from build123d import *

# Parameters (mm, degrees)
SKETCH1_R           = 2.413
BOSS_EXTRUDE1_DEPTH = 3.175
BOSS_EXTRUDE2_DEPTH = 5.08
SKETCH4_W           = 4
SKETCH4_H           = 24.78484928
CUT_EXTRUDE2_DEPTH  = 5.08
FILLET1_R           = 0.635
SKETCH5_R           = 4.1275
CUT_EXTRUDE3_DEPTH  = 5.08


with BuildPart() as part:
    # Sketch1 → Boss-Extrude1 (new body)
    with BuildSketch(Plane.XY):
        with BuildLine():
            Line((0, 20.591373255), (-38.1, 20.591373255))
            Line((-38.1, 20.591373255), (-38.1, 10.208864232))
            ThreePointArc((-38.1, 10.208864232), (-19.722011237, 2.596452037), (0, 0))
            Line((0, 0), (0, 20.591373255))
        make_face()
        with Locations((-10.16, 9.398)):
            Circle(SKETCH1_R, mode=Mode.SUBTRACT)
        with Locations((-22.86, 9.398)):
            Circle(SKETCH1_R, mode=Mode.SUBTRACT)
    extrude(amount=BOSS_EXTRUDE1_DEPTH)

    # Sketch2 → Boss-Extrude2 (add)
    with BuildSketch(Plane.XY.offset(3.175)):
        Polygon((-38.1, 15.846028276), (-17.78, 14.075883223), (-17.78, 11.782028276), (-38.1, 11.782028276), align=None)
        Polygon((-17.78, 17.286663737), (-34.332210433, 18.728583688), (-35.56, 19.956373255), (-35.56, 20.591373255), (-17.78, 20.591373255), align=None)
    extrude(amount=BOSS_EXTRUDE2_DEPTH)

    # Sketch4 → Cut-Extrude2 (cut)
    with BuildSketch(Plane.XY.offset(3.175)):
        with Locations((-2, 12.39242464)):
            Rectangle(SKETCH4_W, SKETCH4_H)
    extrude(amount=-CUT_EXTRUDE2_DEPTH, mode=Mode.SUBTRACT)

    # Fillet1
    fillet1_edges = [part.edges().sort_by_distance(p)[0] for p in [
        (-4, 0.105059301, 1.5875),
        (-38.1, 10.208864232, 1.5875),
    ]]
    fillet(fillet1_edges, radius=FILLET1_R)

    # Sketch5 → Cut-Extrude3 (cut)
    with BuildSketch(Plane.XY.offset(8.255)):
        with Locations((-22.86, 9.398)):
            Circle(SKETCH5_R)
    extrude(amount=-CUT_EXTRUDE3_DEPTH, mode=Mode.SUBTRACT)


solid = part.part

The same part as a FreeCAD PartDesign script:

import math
import FreeCAD as App
import Part
import Sketcher
Q = App.Units.Quantity


def edges_at(feature, points):
    """Names of the edges that pass closest to the given points."""
    edges = feature.Shape.Edges
    near = lambda p: min(range(len(edges)), key=lambda i: edges[i].distToShape(Part.Vertex(*p))[0])
    return sorted({f"Edge{near(p) + 1}" for p in points})


def add_polygon(sketch, points):
    """Adds a closed chain of lines whose ends are joined by coincident constraints."""
    first, n = sketch.GeometryCount, len(points)
    for a, b in zip(points, points[1:] + points[:1]):
        sketch.addGeometry(Part.LineSegment(App.Vector(*a, 0), App.Vector(*b, 0)), False)
    for i in range(n):
        sketch.addConstraint(Sketcher.Constraint("Coincident", first + i, 2, first + (i + 1) % n, 1))

doc = App.newDocument("Part")
body = doc.addObject("PartDesign::Body", "Body")

# Sketch on XY plane
sketch1 = body.newObject("Sketcher::SketchObject", "Sketch")
sketch1.AttachmentSupport = (doc.getObject("XY_Plane"), [""])
sketch1.MapMode = "FlatFace"
sketch1.addGeometry(Part.LineSegment(App.Vector(0, 20.6, 0), App.Vector(-38.1, 20.6, 0)), False)
sketch1.addGeometry(Part.LineSegment(App.Vector(-38.1, 20.6, 0), App.Vector(-38.1, 10.2, 0)), False)
sketch1.addGeometry(Part.ArcOfCircle(Part.Circle(App.Vector(0, 76.2, 0), App.Vector(0, 0, 1), 76.2), math.radians(-120), math.radians(-90)), False)
sketch1.addGeometry(Part.LineSegment(App.Vector(0, 0, 0), App.Vector(0, 20.6, 0)), False)
sketch1.addGeometry(Part.Circle(App.Vector(-22.9, 9.4, 0), App.Vector(0, 0, 1), 2.4), False)
sketch1.addGeometry(Part.Circle(App.Vector(-10.2, 9.4, 0), App.Vector(0, 0, 1), 2.4), False)
sketch1.addConstraint(Sketcher.Constraint("Coincident", 0, 2, 1, 1))
sketch1.addConstraint(Sketcher.Constraint("Coincident", 1, 2, 2, 1))
sketch1.addConstraint(Sketcher.Constraint("Coincident", 2, 2, 3, 1))
sketch1.addConstraint(Sketcher.Constraint("Coincident", 3, 2, 0, 1))
sketch1.addConstraint(Sketcher.Constraint("Horizontal", 0))
sketch1.addConstraint(Sketcher.Constraint("Vertical", 1))
sketch1.addConstraint(Sketcher.Constraint("Vertical", 3))
sketch1.addConstraint(Sketcher.Constraint("Coincident", 2, 2, -1, 1))
sketch1.addConstraint(Sketcher.Constraint("Equal", 4, 5))
sketch1.addConstraint(Sketcher.Constraint("PointOnObject", 2, 3, -2))
sketch1.addConstraint(Sketcher.Constraint("Horizontal", 4, 3, 5, 3))
sketch1.addConstraint(Sketcher.Constraint("Radius", 2, Q("3 in")))
sketch1.addConstraint(Sketcher.Constraint("Diameter", 4, Q("0.19 in")))
sketch1.addConstraint(Sketcher.Constraint("DistanceX", 0, 2, 0, 1, Q("1.5 in")))
sketch1.addConstraint(Sketcher.Constraint("DistanceX", 4, 3, -1, 1, Q("0.9 in")))
sketch1.addConstraint(Sketcher.Constraint("DistanceX", 5, 3, -1, 1, Q("0.4 in")))
sketch1.addConstraint(Sketcher.Constraint("DistanceY", -1, 1, 4, 3, Q("0.37 in")))
sketch1.addConstraint(Sketcher.Constraint("DistanceY", 1, 2, 1, 1, Q("10.382509 mm")))
pad1 = body.newObject("PartDesign::Pad", "Pad")
pad1.Profile = sketch1
pad1.Length = Q("0.125 in")

# Sketch on XY plane
sketch2 = body.newObject("Sketcher::SketchObject", "Sketch001")
sketch2.AttachmentSupport = (doc.getObject("XY_Plane"), [""])
sketch2.MapMode = "FlatFace"
sketch2.AttachmentOffset = App.Placement(App.Vector(0, 0, 0.125 * 25.4), App.Rotation())
add_polygon(sketch2, [(-17.8, 14.1), (-38.1, 15.8), (-38.1, 11.8), (-17.8, 11.8)])  # lines 0-3
add_polygon(sketch2, [(-34.3, 18.7), (-17.8, 17.3), (-17.8, 20.6), (-35.6, 20.6), (-35.6, 20)])  # lines 4-8
sketch2.addConstraint(Sketcher.Constraint("Vertical", 1))
sketch2.addConstraint(Sketcher.Constraint("Horizontal", 2))
sketch2.addConstraint(Sketcher.Constraint("Vertical", 3))
sketch2.addConstraint(Sketcher.Constraint("Vertical", 5))
sketch2.addConstraint(Sketcher.Constraint("Horizontal", 6))
sketch2.addConstraint(Sketcher.Constraint("Vertical", 7))
sketch2.addConstraint(Sketcher.Constraint("Parallel", 0, 4))
sketch2.addConstraint(Sketcher.Constraint("Vertical", 3, 2, 4, 2))
sketch2.addConstraint(Sketcher.Constraint("DistanceX", 2, 1, 2, 2, Q("0.8 in")))
sketch2.addConstraint(Sketcher.Constraint("DistanceX", 6, 2, 6, 1, Q("0.7 in")))
sketch2.addConstraint(Sketcher.Constraint("Angle", 8, Q("-45 deg")))
sketch2.addConstraint(Sketcher.Constraint("DistanceY", 1, 2, 1, 1, Q("0.16 in")))
sketch2.addConstraint(Sketcher.Constraint("DistanceX", 0, 2, -1, 1, Q("1.5 in")))
sketch2.addConstraint(Sketcher.Constraint("DistanceY", 7, 2, 7, 1, Q("0.025 in")))
sketch2.addConstraint(Sketcher.Constraint("DistanceY", 5, 1, 5, 2, Q("3.30471 mm")))
sketch2.addConstraint(Sketcher.Constraint("DistanceY", 3, 1, 3, 2, Q("2.293855 mm")))
sketch2.addConstraint(Sketcher.Constraint("DistanceY", -1, 1, 0, 2, Q("15.846028 mm")))
sketch2.addConstraint(Sketcher.Constraint("DistanceY", 3, 2, 4, 2, Q("3.210781 mm")))
pad2 = body.newObject("PartDesign::Pad", "Pad001")
pad2.Profile = sketch2
pad2.Length = Q("0.2 in")

# Sketch on XY plane
sketch3 = body.newObject("Sketcher::SketchObject", "Sketch002")
sketch3.AttachmentSupport = (doc.getObject("XY_Plane"), [""])
sketch3.MapMode = "FlatFace"
sketch3.AttachmentOffset = App.Placement(App.Vector(0, 0, 0.125 * 25.4), App.Rotation())
add_polygon(sketch3, [(-4, 24.8), (-4, 0), (0, 0), (0, 24.8)])  # lines 0-3
sketch3.addConstraint(Sketcher.Constraint("Vertical", 0))
sketch3.addConstraint(Sketcher.Constraint("Horizontal", 1))
sketch3.addConstraint(Sketcher.Constraint("Vertical", 2))
sketch3.addConstraint(Sketcher.Constraint("Horizontal", 3))
sketch3.addConstraint(Sketcher.Constraint("Coincident", 1, 2, -1, 1))
sketch3.addConstraint(Sketcher.Constraint("DistanceX", 1, 1, 1, 2, Q("4 mm")))
sketch3.addConstraint(Sketcher.Constraint("DistanceY", 0, 2, 0, 1, Q("24.784849 mm")))
pocket1 = body.newObject("PartDesign::Pocket", "Pocket")
pocket1.Profile = sketch3
pocket1.Length = Q("0.2 in")
doc.recompute()

fillet = body.newObject("PartDesign::Fillet", "Fillet")
fillet.Base = (pocket1, edges_at(pocket1, [(-4, 0.105, 1.587), (-38.1, 10.209, 1.587)]))
fillet.Radius = Q("0.025 in")

# Sketch on XY plane
sketch4 = body.newObject("Sketcher::SketchObject", "Sketch003")
sketch4.AttachmentSupport = (doc.getObject("XY_Plane"), [""])
sketch4.MapMode = "FlatFace"
sketch4.AttachmentOffset = App.Placement(App.Vector(0, 0, 0.325 * 25.4), App.Rotation())
sketch4.addGeometry(Part.Circle(App.Vector(-22.9, 9.4, 0), App.Vector(0, 0, 1), 4.1), False)
sketch4.addConstraint(Sketcher.Constraint("Diameter", 0, Q("0.325 in")))
sketch4.addConstraint(Sketcher.Constraint("DistanceX", 0, 3, -1, 1, Q("0.9 in")))
sketch4.addConstraint(Sketcher.Constraint("DistanceY", -1, 1, 0, 3, Q("0.37 in")))
pocket2 = body.newObject("PartDesign::Pocket", "Pocket001")
pocket2.Profile = sketch4
pocket2.Length = Q("0.2 in")

doc.recompute()
